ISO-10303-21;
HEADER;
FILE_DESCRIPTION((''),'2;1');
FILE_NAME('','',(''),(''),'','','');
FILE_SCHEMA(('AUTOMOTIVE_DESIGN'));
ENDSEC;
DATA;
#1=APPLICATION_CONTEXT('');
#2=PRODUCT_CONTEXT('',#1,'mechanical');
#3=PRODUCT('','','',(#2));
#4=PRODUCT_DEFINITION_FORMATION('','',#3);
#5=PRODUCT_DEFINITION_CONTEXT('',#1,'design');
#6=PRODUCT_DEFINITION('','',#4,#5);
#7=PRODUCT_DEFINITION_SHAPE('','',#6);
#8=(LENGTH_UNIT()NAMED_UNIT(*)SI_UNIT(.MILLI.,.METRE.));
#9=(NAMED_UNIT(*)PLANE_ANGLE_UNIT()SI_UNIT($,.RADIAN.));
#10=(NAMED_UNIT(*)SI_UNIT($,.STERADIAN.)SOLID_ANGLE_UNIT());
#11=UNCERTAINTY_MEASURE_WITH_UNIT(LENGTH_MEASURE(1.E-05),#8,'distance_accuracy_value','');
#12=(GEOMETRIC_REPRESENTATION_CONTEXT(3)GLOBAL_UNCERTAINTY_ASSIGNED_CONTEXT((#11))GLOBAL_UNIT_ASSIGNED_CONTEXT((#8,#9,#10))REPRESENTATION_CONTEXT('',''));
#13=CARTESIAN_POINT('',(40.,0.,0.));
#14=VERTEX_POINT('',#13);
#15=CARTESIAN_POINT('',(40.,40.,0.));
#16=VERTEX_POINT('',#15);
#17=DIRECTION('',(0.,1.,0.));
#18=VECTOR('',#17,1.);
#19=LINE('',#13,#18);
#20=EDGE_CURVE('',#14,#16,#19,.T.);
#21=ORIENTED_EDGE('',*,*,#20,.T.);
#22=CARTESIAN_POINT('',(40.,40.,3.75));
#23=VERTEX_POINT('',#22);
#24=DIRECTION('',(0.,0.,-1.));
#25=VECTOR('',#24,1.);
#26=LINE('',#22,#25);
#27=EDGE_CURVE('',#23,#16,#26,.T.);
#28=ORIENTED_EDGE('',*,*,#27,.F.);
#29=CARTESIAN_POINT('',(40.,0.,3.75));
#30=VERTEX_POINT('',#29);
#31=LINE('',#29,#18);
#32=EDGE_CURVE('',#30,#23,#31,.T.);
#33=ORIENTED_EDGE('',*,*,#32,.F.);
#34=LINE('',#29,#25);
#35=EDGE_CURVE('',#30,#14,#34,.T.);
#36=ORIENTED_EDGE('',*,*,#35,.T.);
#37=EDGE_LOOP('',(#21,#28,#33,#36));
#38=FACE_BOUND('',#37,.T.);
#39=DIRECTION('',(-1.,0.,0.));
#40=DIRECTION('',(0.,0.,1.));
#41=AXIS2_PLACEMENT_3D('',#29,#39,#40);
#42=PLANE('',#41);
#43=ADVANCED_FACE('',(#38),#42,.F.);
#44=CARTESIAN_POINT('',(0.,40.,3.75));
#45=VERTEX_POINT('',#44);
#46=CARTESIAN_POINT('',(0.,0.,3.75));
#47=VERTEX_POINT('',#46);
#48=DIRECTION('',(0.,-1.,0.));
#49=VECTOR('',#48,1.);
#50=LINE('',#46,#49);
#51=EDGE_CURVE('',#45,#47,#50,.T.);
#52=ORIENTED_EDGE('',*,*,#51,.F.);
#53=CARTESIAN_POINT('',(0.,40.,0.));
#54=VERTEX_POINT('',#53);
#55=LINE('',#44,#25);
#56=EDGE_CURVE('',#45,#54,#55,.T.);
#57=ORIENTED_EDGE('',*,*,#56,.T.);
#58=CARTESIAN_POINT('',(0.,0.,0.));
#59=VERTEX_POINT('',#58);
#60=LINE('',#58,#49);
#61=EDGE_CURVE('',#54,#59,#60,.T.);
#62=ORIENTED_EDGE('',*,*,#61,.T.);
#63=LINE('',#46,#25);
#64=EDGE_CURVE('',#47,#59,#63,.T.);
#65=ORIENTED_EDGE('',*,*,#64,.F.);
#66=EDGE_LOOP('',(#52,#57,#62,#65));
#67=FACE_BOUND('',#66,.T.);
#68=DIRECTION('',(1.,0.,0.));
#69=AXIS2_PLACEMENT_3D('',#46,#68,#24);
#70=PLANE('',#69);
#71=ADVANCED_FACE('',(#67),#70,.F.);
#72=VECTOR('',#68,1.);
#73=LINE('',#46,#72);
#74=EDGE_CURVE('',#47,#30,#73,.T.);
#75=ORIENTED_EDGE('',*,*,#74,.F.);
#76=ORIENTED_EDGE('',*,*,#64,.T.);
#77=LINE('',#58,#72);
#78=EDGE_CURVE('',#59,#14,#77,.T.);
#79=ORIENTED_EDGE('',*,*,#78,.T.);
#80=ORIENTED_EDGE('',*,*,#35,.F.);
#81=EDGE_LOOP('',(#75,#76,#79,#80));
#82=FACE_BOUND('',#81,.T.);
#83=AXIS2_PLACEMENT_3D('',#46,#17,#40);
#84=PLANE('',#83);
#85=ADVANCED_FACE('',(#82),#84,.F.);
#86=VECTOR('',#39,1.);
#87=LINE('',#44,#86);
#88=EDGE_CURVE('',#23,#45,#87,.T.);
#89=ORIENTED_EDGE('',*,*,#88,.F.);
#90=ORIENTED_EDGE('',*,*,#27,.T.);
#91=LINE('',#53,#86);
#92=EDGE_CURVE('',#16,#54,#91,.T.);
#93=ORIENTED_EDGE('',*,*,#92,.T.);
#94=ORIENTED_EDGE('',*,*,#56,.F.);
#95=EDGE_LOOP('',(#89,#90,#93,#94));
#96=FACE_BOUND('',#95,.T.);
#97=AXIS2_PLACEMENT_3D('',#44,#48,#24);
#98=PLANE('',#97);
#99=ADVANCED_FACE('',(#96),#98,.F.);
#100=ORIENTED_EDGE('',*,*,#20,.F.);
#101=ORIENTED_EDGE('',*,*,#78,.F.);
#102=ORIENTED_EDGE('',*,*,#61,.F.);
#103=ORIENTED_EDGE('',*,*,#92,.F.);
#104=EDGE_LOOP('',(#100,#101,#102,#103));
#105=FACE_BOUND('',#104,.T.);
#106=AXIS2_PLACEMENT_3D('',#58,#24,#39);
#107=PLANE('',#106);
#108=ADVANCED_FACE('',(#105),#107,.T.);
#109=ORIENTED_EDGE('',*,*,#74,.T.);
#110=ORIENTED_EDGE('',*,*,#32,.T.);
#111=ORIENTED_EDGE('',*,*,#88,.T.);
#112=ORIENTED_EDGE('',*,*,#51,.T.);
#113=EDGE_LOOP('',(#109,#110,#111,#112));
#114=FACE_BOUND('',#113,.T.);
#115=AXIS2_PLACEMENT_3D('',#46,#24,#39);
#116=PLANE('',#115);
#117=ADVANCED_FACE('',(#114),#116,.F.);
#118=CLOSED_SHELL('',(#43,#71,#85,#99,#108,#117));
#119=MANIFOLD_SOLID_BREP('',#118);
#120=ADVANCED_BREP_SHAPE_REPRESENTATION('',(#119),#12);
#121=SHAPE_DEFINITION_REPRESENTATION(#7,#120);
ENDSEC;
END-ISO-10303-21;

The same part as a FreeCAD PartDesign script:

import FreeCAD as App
import Part
import Sketcher

V = App.Vector

doc = App.newDocument("Part")
body = doc.addObject("PartDesign::Body", "Body")

sketch1 = body.newObject("Sketcher::SketchObject", "Sketch")
sketch1.AttachmentSupport = (doc.getObject("XY_Plane"), [""])
sketch1.MapMode = "FlatFace"
sketch1.addGeometry(Part.LineSegment(V(0, 40, 0), V(0, 0, 0)), False)
sketch1.addGeometry(Part.LineSegment(V(0, 0, 0), V(40, 0, 0)), False)
sketch1.addGeometry(Part.LineSegment(V(40, 0, 0), V(40, 40, 0)), False)
sketch1.addGeometry(Part.LineSegment(V(40, 40, 0), V(0, 40, 0)), False)
sketch1.addConstraint(Sketcher.Constraint("Coincident", 0, 2, 1, 1))
sketch1.addConstraint(Sketcher.Constraint("Coincident", 1, 2, 2, 1))
sketch1.addConstraint(Sketcher.Constraint("Coincident", 2, 2, 3, 1))
sketch1.addConstraint(Sketcher.Constraint("Coincident", 3, 2, 0, 1))
sketch1.addConstraint(Sketcher.Constraint("Vertical", 0))
sketch1.addConstraint(Sketcher.Constraint("Horizontal", 1))
sketch1.addConstraint(Sketcher.Constraint("Vertical", 2))
sketch1.addConstraint(Sketcher.Constraint("Horizontal", 3))
sketch1.addConstraint(Sketcher.Constraint("Coincident", 0, 2, -1, 1))
sketch1.addConstraint(Sketcher.Constraint("Equal", 3, 0))
sketch1.addConstraint(Sketcher.Constraint("DistanceX", 1, 1, 1, 2, 40.0))
pad1 = body.newObject("PartDesign::Pad", "Pad")
pad1.Profile = sketch1
pad1.Length = 3.75

doc.recompute()
